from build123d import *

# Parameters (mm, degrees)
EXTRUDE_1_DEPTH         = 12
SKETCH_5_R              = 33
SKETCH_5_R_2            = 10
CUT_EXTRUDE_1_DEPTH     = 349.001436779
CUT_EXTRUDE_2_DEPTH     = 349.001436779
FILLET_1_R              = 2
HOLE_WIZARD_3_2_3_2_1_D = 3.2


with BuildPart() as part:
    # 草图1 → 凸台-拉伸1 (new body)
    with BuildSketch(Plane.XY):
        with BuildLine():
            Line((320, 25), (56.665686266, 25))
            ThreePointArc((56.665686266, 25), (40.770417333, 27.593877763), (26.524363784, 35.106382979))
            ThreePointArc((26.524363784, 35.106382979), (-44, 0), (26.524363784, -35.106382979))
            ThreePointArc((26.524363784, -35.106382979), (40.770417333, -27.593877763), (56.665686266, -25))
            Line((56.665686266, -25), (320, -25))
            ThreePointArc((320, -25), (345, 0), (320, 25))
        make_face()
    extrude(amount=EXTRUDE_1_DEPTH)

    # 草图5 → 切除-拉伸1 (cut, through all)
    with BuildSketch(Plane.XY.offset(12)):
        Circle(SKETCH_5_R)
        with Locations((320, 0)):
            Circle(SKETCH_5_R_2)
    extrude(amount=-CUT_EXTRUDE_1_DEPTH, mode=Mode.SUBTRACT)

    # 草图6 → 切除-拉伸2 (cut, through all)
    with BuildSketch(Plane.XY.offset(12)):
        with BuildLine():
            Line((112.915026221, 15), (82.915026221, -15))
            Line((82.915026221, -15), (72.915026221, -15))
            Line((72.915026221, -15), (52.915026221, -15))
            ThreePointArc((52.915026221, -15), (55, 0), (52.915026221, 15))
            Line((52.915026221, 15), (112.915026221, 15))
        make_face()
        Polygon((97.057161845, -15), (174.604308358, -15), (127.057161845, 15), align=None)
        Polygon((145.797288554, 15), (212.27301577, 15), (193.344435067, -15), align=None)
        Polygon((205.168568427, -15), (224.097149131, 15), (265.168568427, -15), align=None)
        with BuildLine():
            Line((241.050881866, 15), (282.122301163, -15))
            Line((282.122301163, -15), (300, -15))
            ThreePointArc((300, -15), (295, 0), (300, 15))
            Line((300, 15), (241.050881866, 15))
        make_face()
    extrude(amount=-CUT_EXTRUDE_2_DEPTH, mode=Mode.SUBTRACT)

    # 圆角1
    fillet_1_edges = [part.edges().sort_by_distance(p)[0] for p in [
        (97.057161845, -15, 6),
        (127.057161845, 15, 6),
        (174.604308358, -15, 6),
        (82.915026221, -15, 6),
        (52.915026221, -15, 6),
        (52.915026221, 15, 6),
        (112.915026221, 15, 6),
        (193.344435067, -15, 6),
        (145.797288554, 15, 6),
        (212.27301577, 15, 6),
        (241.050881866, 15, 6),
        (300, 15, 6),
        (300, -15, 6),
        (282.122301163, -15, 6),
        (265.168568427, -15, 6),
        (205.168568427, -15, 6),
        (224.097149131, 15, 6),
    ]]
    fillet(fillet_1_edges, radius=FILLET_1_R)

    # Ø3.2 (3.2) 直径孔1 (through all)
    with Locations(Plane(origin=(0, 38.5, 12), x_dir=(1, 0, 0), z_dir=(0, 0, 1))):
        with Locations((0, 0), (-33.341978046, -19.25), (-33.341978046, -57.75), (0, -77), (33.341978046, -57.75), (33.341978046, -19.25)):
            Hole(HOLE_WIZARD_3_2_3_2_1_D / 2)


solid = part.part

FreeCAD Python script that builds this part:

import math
import FreeCAD as App
import Part
import Sketcher
from FreeCAD import Vector
Q = App.Units.Quantity


def edges_at(feature, points):
    """Names of the edges that pass closest to the given points."""
    edges = feature.Shape.Edges
    near = lambda p: min(range(len(edges)), key=lambda i: edges[i].distToShape(Part.Vertex(*p))[0])
    return sorted({f"Edge{near(p) + 1}" for p in points})

doc = App.newDocument("Part")
body = doc.addObject("PartDesign::Body", "Body")

sketch1 = body.newObject("Sketcher::SketchObject", "Sketch")
sketch1.AttachmentSupport = (doc.getObject("XY_Plane"), [""])
sketch1.MapMode = "FlatFace"
sketch1.addGeometry(Part.LineSegment(Vector(320, 25, 0), Vector(57, 25, 0)), False)
sketch1.addGeometry(Part.ArcOfCircle(Part.Circle(Vector(57, 75, 0), Vector(0, 0, 1), 50), math.radians(-127), math.radians(-90)), False)
sketch1.addGeometry(Part.ArcOfCircle(Part.Circle(Vector(0, 0, 0), Vector(0, 0, 1), 44), math.radians(53), math.radians(307)), False)
sketch1.addGeometry(Part.ArcOfCircle(Part.Circle(Vector(57, -75, 0), Vector(0, 0, 1), 50), math.radians(90), math.radians(127)), False)
sketch1.addGeometry(Part.LineSegment(Vector(57, -25, 0), Vector(320, -25, 0)), False)
sketch1.addGeometry(Part.ArcOfCircle(Part.Circle(Vector(320, 0, 0), Vector(0, 0, 1), 25), math.radians(-90), math.radians(90)), False)
sketch1.addConstraint(Sketcher.Constraint("Tangent", 0, 2, 1, 2))
sketch1.addConstraint(Sketcher.Constraint("Tangent", 1, 1, 2, 1))
sketch1.addConstraint(Sketcher.Constraint("Tangent", 2, 2, 3, 2))
sketch1.addConstraint(Sketcher.Constraint("Tangent", 3, 1, 4, 1))
sketch1.addConstraint(Sketcher.Constraint("Tangent", 4, 2, 5, 1))
sketch1.addConstraint(Sketcher.Constraint("Tangent", 5, 2, 0, 1))
sketch1.addConstraint(Sketcher.Constraint("Horizontal", 0))
sketch1.addConstraint(Sketcher.Constraint("Horizontal", 4))
sketch1.addConstraint(Sketcher.Constraint("Coincident", 2, 3, -1, 1))
sketch1.addConstraint(Sketcher.Constraint("Equal", 1, 3))
sketch1.addConstraint(Sketcher.Constraint("PointOnObject", 5, 3, -1))
sketch1.addConstraint(Sketcher.Constraint("Radius", 1, 50.0))
sketch1.addConstraint(Sketcher.Constraint("Radius", 2, 44.0))
sketch1.addConstraint(Sketcher.Constraint("Radius", 5, 25.0))
sketch1.addConstraint(Sketcher.Constraint("DistanceX", -1, 1, 5, 3, 320.0))
pad1 = body.newObject("PartDesign::Pad", "Pad")
pad1.Profile = sketch1
pad1.Length = 12

sketch2 = body.newObject("Sketcher::SketchObject", "Sketch001")
sketch2.AttachmentSupport = (doc.getObject("XY_Plane"), [""])
sketch2.MapMode = "FlatFace"
sketch2.AttachmentOffset = App.Placement(Vector(0, 0, 12), App.Rotation())
sketch2.addGeometry(Part.Circle(Vector(0, 0, 0), Vector(0, 0, 1), 33), False)
sketch2.addGeometry(Part.Circle(Vector(320, 0, 0), Vector(0, 0, 1), 10), False)
sketch2.addConstraint(Sketcher.Constraint("Coincident", 0, 3, -1, 1))
sketch2.addConstraint(Sketcher.Constraint("PointOnObject", 1, 3, -1))
sketch2.addConstraint(Sketcher.Constraint("Diameter", 0, 66.0))
sketch2.addConstraint(Sketcher.Constraint("Diameter", 1, 20.0))
sketch2.addConstraint(Sketcher.Constraint("DistanceX", -1, 1, 1, 3, 320.0))
pocket1 = body.newObject("PartDesign::Pocket", "Pocket")
pocket1.Profile = sketch2
pocket1.Type = "ThroughAll"

sketch3 = body.newObject("Sketcher::SketchObject", "Sketch002")
sketch3.AttachmentSupport = (doc.getObject("XY_Plane"), [""])
sketch3.MapMode = "FlatFace"
sketch3.AttachmentOffset = App.Placement(Vector(0, 0, 12), App.Rotation())
sketch3.addGeometry(Part.LineSegment(Vector(83, -15, 0), Vector(113, 15, 0)), False)
sketch3.addGeometry(Part.LineSegment(Vector(113, 15, 0), Vector(53, 15, 0)), False)
sketch3.addGeometry(Part.ArcOfCircle(Part.Circle(Vector(0, 0, 0), Vector(0, 0, 1), 55), math.radians(-16), math.radians(16)), False)
sketch3.addGeometry(Part.LineSegment(Vector(53, -15, 0), Vector(83, -15, 0)), False)
sketch3.addGeometry(Part.LineSegment(Vector(97, -15, 0), Vector(175, -15, 0)), False)
sketch3.addGeometry(Part.LineSegment(Vector(175, -15, 0), Vector(127, 15, 0)), False)
sketch3.addGeometry(Part.LineSegment(Vector(127, 15, 0), Vector(97, -15, 0)), False)
sketch3.addGeometry(Part.LineSegment(Vector(212, 15, 0), Vector(146, 15, 0)), False)
sketch3.addGeometry(Part.LineSegment(Vector(146, 15, 0), Vector(193, -15, 0)), False)
sketch3.addGeometry(Part.LineSegment(Vector(193, -15, 0), Vector(212, 15, 0)), False)
sketch3.addGeometry(Part.LineSegment(Vector(224, 15, 0), Vector(205, -15, 0)), False)
sketch3.addGeometry(Part.LineSegment(Vector(205, -15, 0), Vector(265, -15, 0)), False)
sketch3.addGeometry(Part.LineSegment(Vector(265, -15, 0), Vector(224, 15, 0)), False)
sketch3.addGeometry(Part.LineSegment(Vector(241, 15, 0), Vector(282, -15, 0)), False)
sketch3.addGeometry(Part.LineSegment(Vector(282, -15, 0), Vector(300, -15, 0)), False)
sketch3.addGeometry(Part.ArcOfCircle(Part.Circle(Vector(320, 0, 0), Vector(0, 0, 1), 25), math.radians(143), math.radians(217)), False)
sketch3.addGeometry(Part.LineSegment(Vector(300, 15, 0), Vector(241, 15, 0)), False)
sketch3.addConstraint(Sketcher.Constraint("Coincident", 0, 2, 1, 1))
sketch3.addConstraint(Sketcher.Constraint("Coincident", 1, 2, 2, 2))
sketch3.addConstraint(Sketcher.Constraint("Coincident", 2, 1, 3, 1))
sketch3.addConstraint(Sketcher.Constraint("Coincident", 3, 2, 0, 1))
sketch3.addConstraint(Sketcher.Constraint("Coincident", 4, 2, 5, 1))
sketch3.addConstraint(Sketcher.Constraint("Coincident", 5, 2, 6, 1))
sketch3.addConstraint(Sketcher.Constraint("Coincident", 6, 2, 4, 1))
sketch3.addConstraint(Sketcher.Constraint("Coincident", 7, 2, 8, 1))
sketch3.addConstraint(Sketcher.Constraint("Coincident", 8, 2, 9, 1))
sketch3.addConstraint(Sketcher.Constraint("Coincident", 9, 2, 7, 1))
sketch3.addConstraint(Sketcher.Constraint("Coincident", 10, 2, 11, 1))
sketch3.addConstraint(Sketcher.Constraint("Coincident", 11, 2, 12, 1))
sketch3.addConstraint(Sketcher.Constraint("Coincident", 12, 2, 10, 1))
sketch3.addConstraint(Sketcher.Constraint("Coincident", 13, 2, 14, 1))
sketch3.addConstraint(Sketcher.Constraint("Coincident", 14, 2, 15, 2))
sketch3.addConstraint(Sketcher.Constraint("Coincident", 15, 1, 16, 1))
sketch3.addConstraint(Sketcher.Constraint("Coincident", 16, 2, 13, 1))
sketch3.addConstraint(Sketcher.Constraint("Horizontal", 1))
sketch3.addConstraint(Sketcher.Constraint("Horizontal", 3))
sketch3.addConstraint(Sketcher.Constraint("Horizontal", 4))
sketch3.addConstraint(Sketcher.Constraint("Horizontal", 7))
sketch3.addConstraint(Sketcher.Constraint("Horizontal", 11))
sketch3.addConstraint(Sketcher.Constraint("Horizontal", 14))
sketch3.addConstraint(Sketcher.Constraint("Horizontal", 16))
sketch3.addConstraint(Sketcher.Constraint("Coincident", 2, 3, -1, 1))
sketch3.addConstraint(Sketcher.Constraint("Symmetric", 14, 2, 15, 1, -1))
sketch3.addConstraint(Sketcher.Constraint("Parallel", 0, 6))
sketch3.addConstraint(Sketcher.Constraint("Parallel", 5, 8))
sketch3.addConstraint(Sketcher.Constraint("Perpendicular", 8, 9))
sketch3.addConstraint(Sketcher.Constraint("Parallel", 9, 10))
sketch3.addConstraint(Sketcher.Constraint("Parallel", 12, 13))
sketch3.addConstraint(Sketcher.Constraint("Horizontal", 3, 2, 4, 2))
sketch3.addConstraint(Sketcher.Constraint("Horizontal", 1, 2, 5, 2))
sketch3.addConstraint(Sketcher.Constraint("Horizontal", 5, 2, 7, 2))
sketch3.addConstraint(Sketcher.Constraint("Horizontal", 6, 2, 8, 2))
sketch3.addConstraint(Sketcher.Constraint("Horizontal", 8, 2, 10, 2))
sketch3.addConstraint(Sketcher.Constraint("Horizontal", 9, 2, 12, 2))
sketch3.addConstraint(Sketcher.Constraint("Horizontal", 11, 2, 13, 2))
sketch3.addConstraint(Sketcher.Constraint("Horizontal", 12, 2, 15, 1))
sketch3.addConstraint(Sketcher.Constraint("Equal", 1, 11))
sketch3.addConstraint(Sketcher.Constraint("Radius", 2, 55.0))
sketch3.addConstraint(Sketcher.Constraint("Radius", 15, 25.0))
sketch3.addConstraint(Sketcher.Constraint("DistanceX", 1, 2, 1, 1, 60.0))
sketch3.addConstraint(Sketcher.Constraint("DistanceX", 3, 1, 3, 2, 30.0))
sketch3.addConstraint(Sketcher.Constraint("Angle", 0, Q("45 deg")))
sketch3.addConstraint(Sketcher.Constraint("DistanceX", -1, 1, 15, 3, 320.0))
sketch3.addConstraint(Sketcher.Constraint("Angle", 5, Q("147.750013 deg")))
sketch3.addConstraint(Sketcher.Constraint("DistanceX", 14, 1, 14, 2, 17.877699))
sketch3.addConstraint(Sketcher.Constraint("DistanceX", -1, 1, 4, 2, 174.604308))
sketch3.addConstraint(Sketcher.Constraint("DistanceX", -1, 1, 7, 2, 145.797289))
sketch3.addConstraint(Sketcher.Constraint("DistanceX", -1, 1, 10, 2, 205.168568))
pocket2 = body.newObject("PartDesign::Pocket", "Pocket001")
pocket2.Profile = sketch3
pocket2.Type = "ThroughAll"
doc.recompute()

fillet = body.newObject("PartDesign::Fillet", "Fillet")
fillet.Base = (pocket2, edges_at(pocket2, [
    (97.057, -15, 6),
    (127.057, 15, 6),
    (174.604, -15, 6),
    (82.915, -15, 6),
    (52.915, -15, 6),
    (52.915, 15, 6),
    (112.915, 15, 6),
    (193.344, -15, 6),
    (145.797, 15, 6),
    (212.273, 15, 6),
    (241.051, 15, 6),
    (300, 15, 6),
    (300, -15, 6),
    (282.122, -15, 6),
    (265.169, -15, 6),
    (205.169, -15, 6),
    (224.097, 15, 6),
]))
fillet.Radius = 2

sketch4 = body.newObject("Sketcher::SketchObject", "Sketch003")
sketch4.AttachmentSupport = (doc.getObject("XY_Plane"), [""])
sketch4.MapMode = "FlatFace"
sketch4.AttachmentOffset = App.Placement(Vector(0, 0, 12), App.Rotation())
sketch4.addGeometry(Part.Circle(Vector(0, 38.5, 0), Vector(0, 0, 1), 1.6), False)
sketch4.addGeometry(Part.Circle(Vector(-33.3, 19.2, 0), Vector(0, 0, 1), 1.6), False)
sketch4.addGeometry(Part.Circle(Vector(-33.3, -19.2, 0), Vector(0, 0, 1), 1.6), False)
sketch4.addGeometry(Part.Circle(Vector(0, -38.5, 0), Vector(0, 0, 1), 1.6), False)
sketch4.addGeometry(Part.Circle(Vector(33.3, -19.2, 0), Vector(0, 0, 1), 1.6), False)
sketch4.addGeometry(Part.Circle(Vector(33.3, 19.2, 0), Vector(0, 0, 1), 1.6), False)
sketch4.addConstraint(Sketcher.Constraint("Equal", 0, 1))
sketch4.addConstraint(Sketcher.Constraint("Equal", 1, 2))
sketch4.addConstraint(Sketcher.Constraint("Equal", 2, 3))
sketch4.addConstraint(Sketcher.Constraint("Equal", 3, 4))
sketch4.addConstraint(Sketcher.Constraint("Equal", 4, 5))
sketch4.addConstraint(Sketcher.Constraint("Symmetric", 0, 3, 3, 3, -1, 1))
sketch4.addConstraint(Sketcher.Constraint("Symmetric", 1, 3, 4, 3, -1, 1))
sketch4.addConstraint(Sketcher.Constraint("Symmetric", 2, 3, 5, 3, -1, 1))
sketch4.addConstraint(Sketcher.Constraint("Symmetric", 2, 3, 4, 3, -2))
sketch4.addConstraint(Sketcher.Constraint("PointOnObject", 0, 3, -2))
sketch4.addConstraint(Sketcher.Constraint("Diameter", 0, 3.2))
sketch4.addConstraint(Sketcher.Constraint("DistanceY", 3, 3, 0, 3, 77.0))
sketch4.addConstraint(Sketcher.Constraint("DistanceY", 2, 3, 1, 3, 38.5))
sketch4.addConstraint(Sketcher.Constraint("DistanceX", 1, 3, -1, 1, 33.341978))
doc.recompute()
hole = body.newObject("PartDesign::Hole", "Hole")
hole.Profile = sketch4
hole.ThreadType = "None"
hole.Diameter = 3.2
hole.DepthType = "ThroughAll"

doc.recompute()
